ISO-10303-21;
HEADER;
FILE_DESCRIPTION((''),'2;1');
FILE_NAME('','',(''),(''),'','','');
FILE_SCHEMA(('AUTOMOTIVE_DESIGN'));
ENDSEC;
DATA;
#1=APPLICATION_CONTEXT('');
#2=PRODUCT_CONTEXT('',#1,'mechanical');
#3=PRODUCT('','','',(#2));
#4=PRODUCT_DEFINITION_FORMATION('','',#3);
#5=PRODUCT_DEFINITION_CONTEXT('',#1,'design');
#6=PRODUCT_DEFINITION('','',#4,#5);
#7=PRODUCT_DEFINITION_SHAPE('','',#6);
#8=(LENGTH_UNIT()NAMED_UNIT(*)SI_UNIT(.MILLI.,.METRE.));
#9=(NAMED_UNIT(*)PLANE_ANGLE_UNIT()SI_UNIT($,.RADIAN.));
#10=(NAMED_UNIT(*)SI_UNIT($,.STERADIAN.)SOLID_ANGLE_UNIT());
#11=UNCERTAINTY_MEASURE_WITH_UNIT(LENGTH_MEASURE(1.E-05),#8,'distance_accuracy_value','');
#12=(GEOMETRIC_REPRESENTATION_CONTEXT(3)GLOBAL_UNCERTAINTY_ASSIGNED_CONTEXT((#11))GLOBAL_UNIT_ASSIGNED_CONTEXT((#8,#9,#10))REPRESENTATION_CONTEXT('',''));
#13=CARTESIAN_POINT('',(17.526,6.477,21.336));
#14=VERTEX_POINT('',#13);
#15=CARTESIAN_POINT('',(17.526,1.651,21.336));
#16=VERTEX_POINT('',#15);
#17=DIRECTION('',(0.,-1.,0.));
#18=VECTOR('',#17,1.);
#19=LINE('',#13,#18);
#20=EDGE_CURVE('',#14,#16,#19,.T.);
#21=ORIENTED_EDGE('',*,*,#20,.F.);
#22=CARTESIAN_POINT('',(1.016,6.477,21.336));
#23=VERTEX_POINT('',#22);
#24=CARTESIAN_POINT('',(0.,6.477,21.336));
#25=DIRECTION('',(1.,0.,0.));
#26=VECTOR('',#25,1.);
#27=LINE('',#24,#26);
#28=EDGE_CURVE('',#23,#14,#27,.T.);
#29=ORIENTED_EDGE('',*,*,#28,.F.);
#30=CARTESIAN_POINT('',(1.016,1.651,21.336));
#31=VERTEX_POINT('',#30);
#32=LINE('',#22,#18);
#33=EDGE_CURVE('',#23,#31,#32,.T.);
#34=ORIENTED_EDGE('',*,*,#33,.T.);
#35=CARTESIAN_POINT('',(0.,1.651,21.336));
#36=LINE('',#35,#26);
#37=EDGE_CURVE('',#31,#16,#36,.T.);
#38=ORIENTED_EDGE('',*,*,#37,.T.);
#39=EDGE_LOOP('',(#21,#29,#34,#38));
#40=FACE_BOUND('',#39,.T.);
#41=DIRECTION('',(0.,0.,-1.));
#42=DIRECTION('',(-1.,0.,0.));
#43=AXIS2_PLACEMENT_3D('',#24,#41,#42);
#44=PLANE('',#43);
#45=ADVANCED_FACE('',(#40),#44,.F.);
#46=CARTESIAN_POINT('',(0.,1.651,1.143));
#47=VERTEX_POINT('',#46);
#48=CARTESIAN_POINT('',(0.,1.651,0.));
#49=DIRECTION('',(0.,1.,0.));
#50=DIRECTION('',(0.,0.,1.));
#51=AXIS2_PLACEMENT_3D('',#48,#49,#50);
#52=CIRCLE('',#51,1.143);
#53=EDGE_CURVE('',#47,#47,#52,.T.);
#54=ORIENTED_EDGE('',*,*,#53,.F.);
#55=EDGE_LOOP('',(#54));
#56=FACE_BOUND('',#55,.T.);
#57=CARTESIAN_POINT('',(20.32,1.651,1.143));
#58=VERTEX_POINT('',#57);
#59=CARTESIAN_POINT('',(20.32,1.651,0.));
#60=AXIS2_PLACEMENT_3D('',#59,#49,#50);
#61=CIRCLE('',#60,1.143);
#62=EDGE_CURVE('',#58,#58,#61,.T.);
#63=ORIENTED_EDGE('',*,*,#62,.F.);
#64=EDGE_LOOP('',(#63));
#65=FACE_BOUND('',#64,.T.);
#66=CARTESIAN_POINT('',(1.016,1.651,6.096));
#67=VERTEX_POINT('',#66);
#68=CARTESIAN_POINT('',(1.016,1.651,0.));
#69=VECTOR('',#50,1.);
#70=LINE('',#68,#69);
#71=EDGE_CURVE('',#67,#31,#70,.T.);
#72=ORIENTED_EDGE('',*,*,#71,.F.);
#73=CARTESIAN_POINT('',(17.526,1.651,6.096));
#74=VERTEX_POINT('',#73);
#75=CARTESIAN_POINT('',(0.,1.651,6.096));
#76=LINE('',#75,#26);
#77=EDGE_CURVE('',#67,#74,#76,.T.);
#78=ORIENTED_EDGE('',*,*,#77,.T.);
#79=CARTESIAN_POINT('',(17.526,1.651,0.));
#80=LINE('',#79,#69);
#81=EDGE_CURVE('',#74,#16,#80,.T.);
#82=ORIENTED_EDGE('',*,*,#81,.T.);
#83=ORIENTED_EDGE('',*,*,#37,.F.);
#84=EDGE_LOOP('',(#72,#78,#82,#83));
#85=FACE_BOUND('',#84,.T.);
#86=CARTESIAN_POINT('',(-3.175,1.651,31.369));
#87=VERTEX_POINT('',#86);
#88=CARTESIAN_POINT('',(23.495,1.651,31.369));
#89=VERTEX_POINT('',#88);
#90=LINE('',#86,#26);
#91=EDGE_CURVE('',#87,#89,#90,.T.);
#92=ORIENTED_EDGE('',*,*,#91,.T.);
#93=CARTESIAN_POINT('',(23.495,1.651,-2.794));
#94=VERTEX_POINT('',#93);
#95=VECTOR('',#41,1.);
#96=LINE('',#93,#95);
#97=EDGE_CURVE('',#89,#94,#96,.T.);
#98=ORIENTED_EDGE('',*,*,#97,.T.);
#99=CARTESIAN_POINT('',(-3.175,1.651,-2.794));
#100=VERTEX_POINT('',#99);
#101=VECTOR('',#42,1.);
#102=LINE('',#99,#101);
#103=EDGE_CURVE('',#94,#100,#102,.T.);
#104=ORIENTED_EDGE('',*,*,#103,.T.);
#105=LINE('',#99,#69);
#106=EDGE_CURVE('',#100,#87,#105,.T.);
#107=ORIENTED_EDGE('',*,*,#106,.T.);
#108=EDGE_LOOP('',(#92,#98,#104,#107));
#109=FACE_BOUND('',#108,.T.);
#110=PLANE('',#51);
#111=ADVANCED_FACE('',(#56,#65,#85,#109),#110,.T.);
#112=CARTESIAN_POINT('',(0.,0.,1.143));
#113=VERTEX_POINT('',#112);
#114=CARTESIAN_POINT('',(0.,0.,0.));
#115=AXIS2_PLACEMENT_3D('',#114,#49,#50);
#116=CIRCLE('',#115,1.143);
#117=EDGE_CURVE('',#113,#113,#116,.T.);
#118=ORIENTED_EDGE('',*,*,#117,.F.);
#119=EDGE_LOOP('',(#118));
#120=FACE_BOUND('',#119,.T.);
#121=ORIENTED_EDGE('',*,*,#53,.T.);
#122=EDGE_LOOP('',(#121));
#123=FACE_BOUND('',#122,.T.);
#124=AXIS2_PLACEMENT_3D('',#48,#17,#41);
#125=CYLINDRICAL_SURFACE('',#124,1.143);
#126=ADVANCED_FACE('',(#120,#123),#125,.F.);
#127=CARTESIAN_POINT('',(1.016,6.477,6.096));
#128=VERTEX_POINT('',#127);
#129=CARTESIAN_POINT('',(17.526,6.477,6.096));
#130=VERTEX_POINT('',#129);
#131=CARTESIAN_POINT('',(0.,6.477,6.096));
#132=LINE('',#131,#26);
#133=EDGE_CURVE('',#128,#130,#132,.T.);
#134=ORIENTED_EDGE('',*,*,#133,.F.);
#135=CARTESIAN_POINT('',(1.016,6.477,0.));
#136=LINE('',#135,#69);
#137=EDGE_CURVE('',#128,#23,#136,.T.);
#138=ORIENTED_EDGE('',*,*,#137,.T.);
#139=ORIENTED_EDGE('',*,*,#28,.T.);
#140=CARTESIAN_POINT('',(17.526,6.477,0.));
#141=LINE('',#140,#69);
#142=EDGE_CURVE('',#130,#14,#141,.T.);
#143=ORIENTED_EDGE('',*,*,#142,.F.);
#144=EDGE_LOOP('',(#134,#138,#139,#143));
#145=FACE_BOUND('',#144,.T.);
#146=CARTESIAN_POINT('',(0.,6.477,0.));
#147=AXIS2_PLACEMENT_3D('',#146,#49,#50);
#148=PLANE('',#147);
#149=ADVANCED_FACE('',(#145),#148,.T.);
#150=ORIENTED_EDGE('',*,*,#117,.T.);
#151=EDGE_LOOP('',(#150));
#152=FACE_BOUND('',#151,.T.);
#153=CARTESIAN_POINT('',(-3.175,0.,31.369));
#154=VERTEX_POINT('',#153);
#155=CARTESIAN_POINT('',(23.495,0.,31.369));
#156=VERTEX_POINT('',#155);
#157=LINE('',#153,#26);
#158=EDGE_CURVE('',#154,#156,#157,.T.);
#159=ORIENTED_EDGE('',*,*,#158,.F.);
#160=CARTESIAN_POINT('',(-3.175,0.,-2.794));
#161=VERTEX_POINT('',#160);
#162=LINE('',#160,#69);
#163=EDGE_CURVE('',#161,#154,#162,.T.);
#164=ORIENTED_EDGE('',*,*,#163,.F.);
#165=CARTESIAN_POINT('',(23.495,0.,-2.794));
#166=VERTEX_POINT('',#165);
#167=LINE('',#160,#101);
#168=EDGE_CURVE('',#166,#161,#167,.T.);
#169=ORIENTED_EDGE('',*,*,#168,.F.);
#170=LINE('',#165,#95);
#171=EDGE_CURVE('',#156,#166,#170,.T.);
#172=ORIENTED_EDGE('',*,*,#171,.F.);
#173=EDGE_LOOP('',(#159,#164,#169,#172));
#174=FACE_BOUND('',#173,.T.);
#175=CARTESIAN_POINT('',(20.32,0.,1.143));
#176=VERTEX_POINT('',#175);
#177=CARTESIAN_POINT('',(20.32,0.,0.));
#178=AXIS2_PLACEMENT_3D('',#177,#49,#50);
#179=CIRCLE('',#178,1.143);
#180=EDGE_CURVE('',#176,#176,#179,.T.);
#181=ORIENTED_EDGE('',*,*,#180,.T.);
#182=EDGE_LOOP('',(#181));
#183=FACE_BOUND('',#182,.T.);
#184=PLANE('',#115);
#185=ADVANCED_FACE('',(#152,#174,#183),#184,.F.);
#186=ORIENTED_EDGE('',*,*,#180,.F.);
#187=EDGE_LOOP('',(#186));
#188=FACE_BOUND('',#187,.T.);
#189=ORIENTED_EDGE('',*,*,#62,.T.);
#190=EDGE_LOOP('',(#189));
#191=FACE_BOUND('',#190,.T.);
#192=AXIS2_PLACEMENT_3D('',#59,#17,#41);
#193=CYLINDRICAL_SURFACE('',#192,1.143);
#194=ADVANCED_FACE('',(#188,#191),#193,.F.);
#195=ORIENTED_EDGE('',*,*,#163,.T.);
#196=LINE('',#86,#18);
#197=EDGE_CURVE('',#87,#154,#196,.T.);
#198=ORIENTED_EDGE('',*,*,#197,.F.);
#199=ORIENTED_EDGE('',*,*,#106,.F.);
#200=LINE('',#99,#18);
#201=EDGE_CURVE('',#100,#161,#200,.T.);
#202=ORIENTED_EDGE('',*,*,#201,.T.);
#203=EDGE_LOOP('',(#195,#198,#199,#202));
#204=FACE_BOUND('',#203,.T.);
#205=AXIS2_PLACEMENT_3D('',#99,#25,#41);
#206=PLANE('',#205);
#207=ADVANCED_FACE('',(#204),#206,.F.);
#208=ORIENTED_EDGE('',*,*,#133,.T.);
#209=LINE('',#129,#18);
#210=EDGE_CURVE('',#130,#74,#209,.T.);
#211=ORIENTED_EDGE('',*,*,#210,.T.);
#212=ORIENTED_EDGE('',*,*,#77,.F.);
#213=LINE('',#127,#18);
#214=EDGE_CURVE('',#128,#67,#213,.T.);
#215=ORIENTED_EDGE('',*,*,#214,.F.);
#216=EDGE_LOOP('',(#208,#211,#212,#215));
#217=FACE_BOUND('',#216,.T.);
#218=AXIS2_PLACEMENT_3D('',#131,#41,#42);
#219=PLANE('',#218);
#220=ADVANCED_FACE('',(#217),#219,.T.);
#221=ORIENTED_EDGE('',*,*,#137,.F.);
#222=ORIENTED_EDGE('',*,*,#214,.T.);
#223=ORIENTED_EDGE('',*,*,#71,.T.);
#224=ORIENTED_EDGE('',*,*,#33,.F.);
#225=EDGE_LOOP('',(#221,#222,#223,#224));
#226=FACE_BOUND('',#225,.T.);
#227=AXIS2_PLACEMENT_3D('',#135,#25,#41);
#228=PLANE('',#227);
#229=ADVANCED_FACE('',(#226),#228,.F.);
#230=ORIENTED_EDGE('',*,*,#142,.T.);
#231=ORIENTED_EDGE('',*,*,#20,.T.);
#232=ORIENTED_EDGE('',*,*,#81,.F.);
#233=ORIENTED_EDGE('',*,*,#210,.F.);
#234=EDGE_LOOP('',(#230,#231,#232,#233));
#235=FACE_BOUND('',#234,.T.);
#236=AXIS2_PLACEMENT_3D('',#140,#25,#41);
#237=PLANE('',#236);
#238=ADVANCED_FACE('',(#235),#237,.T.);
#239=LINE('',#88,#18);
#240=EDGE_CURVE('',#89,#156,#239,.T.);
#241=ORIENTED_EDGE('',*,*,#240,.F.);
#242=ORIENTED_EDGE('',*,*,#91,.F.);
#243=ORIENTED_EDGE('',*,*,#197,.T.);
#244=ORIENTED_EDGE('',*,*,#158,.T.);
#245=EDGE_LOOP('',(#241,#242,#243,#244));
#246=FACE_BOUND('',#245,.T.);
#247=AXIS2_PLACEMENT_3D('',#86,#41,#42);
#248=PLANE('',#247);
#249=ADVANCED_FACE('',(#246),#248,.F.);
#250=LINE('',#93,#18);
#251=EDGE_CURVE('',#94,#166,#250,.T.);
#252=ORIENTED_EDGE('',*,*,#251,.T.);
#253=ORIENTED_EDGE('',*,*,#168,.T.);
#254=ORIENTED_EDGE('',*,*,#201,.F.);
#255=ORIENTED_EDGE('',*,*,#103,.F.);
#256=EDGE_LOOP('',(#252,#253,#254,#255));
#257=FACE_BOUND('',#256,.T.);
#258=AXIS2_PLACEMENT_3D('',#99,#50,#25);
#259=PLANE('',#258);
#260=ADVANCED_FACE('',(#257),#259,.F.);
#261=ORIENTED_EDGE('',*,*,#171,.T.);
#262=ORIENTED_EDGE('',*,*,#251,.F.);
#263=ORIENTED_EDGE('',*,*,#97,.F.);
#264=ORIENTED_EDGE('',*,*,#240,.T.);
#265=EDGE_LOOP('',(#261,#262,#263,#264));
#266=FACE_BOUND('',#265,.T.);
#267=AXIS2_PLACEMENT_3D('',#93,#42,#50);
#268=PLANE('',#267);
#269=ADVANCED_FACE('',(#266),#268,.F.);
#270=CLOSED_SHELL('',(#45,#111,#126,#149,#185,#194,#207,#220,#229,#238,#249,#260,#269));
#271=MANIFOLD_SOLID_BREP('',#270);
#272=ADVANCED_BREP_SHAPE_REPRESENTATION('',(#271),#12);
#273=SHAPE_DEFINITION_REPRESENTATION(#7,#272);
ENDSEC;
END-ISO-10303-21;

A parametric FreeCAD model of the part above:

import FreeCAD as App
import Part
import Sketcher
Q = App.Units.Quantity

doc = App.newDocument("Part")
body = doc.addObject("PartDesign::Body", "Body")

sketch1 = body.newObject("Sketcher::SketchObject", "Sketch")
sketch1.AttachmentSupport = (doc.getObject("XZ_Plane"), [""])
sketch1.MapMode = "FlatFace"
sketch1.addGeometry([
    Part.LineSegment(App.Vector(-3.175, -2.794, 0), App.Vector(-3.175, 31.369, 0)),
    Part.LineSegment(App.Vector(-3.175, 31.369, 0), App.Vector(23.495, 31.369, 0)),
    Part.LineSegment(App.Vector(23.495, 31.369, 0), App.Vector(23.495, -2.794, 0)),
    Part.LineSegment(App.Vector(23.495, -2.794, 0), App.Vector(-3.175, -2.794, 0)),
    Part.Circle(App.Vector(0, 0, 0), App.Vector(0, 0, 1), 1.143),
    Part.Circle(App.Vector(20.32, 0, 0), App.Vector(0, 0, 1), 1.143),
], False)
sketch1.addConstraint([
    Sketcher.Constraint("Coincident", 0, 2, 1, 1),
    Sketcher.Constraint("Coincident", 1, 2, 2, 1),
    Sketcher.Constraint("Coincident", 2, 2, 3, 1),
    Sketcher.Constraint("Coincident", 3, 2, 0, 1),
    Sketcher.Constraint("Vertical", 0),
    Sketcher.Constraint("Horizontal", 1),
    Sketcher.Constraint("Vertical", 2),
    Sketcher.Constraint("Horizontal", 3),
    Sketcher.Constraint("Coincident", 4, 3, -1, 1),
    Sketcher.Constraint("Equal", 4, 5),
    Sketcher.Constraint("PointOnObject", 5, 3, -1),
    Sketcher.Constraint("Diameter", 4, Q("0.09 in")),
    Sketcher.Constraint("DistanceX", 1, 1, 1, 2, Q("1.05 in")),
    Sketcher.Constraint("DistanceX", -1, 1, 5, 3, Q("0.8 in")),
    Sketcher.Constraint("DistanceY", 0, 1, 0, 2, Q("1.345 in")),
    Sketcher.Constraint("DistanceY", 2, 2, -1, 1, Q("0.11 in")),
    Sketcher.Constraint("DistanceX", 0, 2, -1, 1, Q("0.125 in")),
])
pad1 = body.newObject("PartDesign::Pad", "Pad")
pad1.Profile = sketch1
pad1.Length = Q("0.065 in")
pad1.Reversed = True

sketch2 = body.newObject("Sketcher::SketchObject", "Sketch001")
sketch2.AttachmentSupport = (doc.getObject("XZ_Plane"), [""])
sketch2.MapMode = "FlatFace"
sketch2.AttachmentOffset = App.Placement(App.Vector(0, 0, -0.065 * 25.4), App.Rotation())
sketch2.addGeometry([
    Part.LineSegment(App.Vector(1.016, 6.096, 0), App.Vector(1.016, 21.336, 0)),
    Part.LineSegment(App.Vector(1.016, 21.336, 0), App.Vector(17.526, 21.336, 0)),
    Part.LineSegment(App.Vector(17.526, 21.336, 0), App.Vector(17.526, 6.096, 0)),
    Part.LineSegment(App.Vector(17.526, 6.096, 0), App.Vector(1.016, 6.096, 0)),
], False)
sketch2.addConstraint([
    Sketcher.Constraint("Coincident", 0, 2, 1, 1),
    Sketcher.Constraint("Coincident", 1, 2, 2, 1),
    Sketcher.Constraint("Coincident", 2, 2, 3, 1),
    Sketcher.Constraint("Coincident", 3, 2, 0, 1),
    Sketcher.Constraint("Vertical", 0),
    Sketcher.Constraint("Horizontal", 1),
    Sketcher.Constraint("Vertical", 2),
    Sketcher.Constraint("Horizontal", 3),
    Sketcher.Constraint("DistanceY", 0, 1, 0, 2, Q("0.6 in")),
    Sketcher.Constraint("DistanceX", 1, 1, 1, 2, Q("0.65 in")),
    Sketcher.Constraint("DistanceX", -1, 1, 0, 2, Q("0.04 in")),
    Sketcher.Constraint("DistanceY", -1, 1, 0, 2, Q("0.84 in")),
])
pad2 = body.newObject("PartDesign::Pad", "Pad001")
pad2.Profile = sketch2
pad2.Length = Q("0.19 in")
pad2.Reversed = True

doc.recompute()
